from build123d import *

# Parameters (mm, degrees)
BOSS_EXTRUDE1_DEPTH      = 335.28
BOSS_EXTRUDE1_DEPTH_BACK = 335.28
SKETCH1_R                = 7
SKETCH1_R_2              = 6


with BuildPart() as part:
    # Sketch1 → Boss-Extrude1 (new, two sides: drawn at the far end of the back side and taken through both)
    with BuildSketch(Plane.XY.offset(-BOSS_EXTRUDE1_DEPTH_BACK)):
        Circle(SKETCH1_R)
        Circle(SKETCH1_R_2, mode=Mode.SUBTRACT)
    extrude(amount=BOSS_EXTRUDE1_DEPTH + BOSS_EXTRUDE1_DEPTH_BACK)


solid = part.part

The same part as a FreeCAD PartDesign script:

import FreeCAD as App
import Part
import Sketcher
from FreeCAD import Vector
Q = App.Units.Quantity

doc = App.newDocument("Part")
params = doc.addObject("Spreadsheet::Sheet", "Params")
for row, (alias, value) in enumerate([
    ("sketch1_diameter", "14 mm"),
    ("sketch1_diameter2", "12 mm"),
    ("pad1_length", "335.28 mm"),
    ("pad1_length2", "335.28 mm"),
], start=1):
    params.set(f"A{row}", alias)
    params.set(f"B{row}", "=" + value)
    params.setAlias(f"B{row}", alias)

body = doc.addObject("PartDesign::Body", "Body")

sketch1 = doc.addObject("Sketcher::SketchObject", "Sketch")
body.addObject(sketch1)
sketch1.AttachmentSupport = (doc.XY_Plane, [""])
sketch1.MapMode = "FlatFace"
sketch1.addGeometry([
    Part.Circle(Vector(0, 0, 0), Vector(0, 0, 1), 7),
    Part.Circle(Vector(0, 0, 0), Vector(0, 0, 1), 6),
], False)
sketch1.addConstraint([
    Sketcher.Constraint("Coincident", 0, 3, -1, 1),
    Sketcher.Constraint("Coincident", 1, 3, -1, 1),
    Sketcher.Constraint("Diameter", 0, Q("14 mm")),
    Sketcher.Constraint("Diameter", 1, Q("12 mm")),
])
sketch1.setExpression("Constraints[2]", "Params.sketch1_diameter")
sketch1.setExpression("Constraints[3]", "Params.sketch1_diameter2")
pad1 = doc.addObject("PartDesign::Pad", "Pad")
body.addObject(pad1)
pad1.Profile = sketch1
pad1.Type = "TwoLengths"
pad1.setExpression("Length", "Params.pad1_length")
pad1.setExpression("Length2", "Params.pad1_length2")

doc.recompute()
